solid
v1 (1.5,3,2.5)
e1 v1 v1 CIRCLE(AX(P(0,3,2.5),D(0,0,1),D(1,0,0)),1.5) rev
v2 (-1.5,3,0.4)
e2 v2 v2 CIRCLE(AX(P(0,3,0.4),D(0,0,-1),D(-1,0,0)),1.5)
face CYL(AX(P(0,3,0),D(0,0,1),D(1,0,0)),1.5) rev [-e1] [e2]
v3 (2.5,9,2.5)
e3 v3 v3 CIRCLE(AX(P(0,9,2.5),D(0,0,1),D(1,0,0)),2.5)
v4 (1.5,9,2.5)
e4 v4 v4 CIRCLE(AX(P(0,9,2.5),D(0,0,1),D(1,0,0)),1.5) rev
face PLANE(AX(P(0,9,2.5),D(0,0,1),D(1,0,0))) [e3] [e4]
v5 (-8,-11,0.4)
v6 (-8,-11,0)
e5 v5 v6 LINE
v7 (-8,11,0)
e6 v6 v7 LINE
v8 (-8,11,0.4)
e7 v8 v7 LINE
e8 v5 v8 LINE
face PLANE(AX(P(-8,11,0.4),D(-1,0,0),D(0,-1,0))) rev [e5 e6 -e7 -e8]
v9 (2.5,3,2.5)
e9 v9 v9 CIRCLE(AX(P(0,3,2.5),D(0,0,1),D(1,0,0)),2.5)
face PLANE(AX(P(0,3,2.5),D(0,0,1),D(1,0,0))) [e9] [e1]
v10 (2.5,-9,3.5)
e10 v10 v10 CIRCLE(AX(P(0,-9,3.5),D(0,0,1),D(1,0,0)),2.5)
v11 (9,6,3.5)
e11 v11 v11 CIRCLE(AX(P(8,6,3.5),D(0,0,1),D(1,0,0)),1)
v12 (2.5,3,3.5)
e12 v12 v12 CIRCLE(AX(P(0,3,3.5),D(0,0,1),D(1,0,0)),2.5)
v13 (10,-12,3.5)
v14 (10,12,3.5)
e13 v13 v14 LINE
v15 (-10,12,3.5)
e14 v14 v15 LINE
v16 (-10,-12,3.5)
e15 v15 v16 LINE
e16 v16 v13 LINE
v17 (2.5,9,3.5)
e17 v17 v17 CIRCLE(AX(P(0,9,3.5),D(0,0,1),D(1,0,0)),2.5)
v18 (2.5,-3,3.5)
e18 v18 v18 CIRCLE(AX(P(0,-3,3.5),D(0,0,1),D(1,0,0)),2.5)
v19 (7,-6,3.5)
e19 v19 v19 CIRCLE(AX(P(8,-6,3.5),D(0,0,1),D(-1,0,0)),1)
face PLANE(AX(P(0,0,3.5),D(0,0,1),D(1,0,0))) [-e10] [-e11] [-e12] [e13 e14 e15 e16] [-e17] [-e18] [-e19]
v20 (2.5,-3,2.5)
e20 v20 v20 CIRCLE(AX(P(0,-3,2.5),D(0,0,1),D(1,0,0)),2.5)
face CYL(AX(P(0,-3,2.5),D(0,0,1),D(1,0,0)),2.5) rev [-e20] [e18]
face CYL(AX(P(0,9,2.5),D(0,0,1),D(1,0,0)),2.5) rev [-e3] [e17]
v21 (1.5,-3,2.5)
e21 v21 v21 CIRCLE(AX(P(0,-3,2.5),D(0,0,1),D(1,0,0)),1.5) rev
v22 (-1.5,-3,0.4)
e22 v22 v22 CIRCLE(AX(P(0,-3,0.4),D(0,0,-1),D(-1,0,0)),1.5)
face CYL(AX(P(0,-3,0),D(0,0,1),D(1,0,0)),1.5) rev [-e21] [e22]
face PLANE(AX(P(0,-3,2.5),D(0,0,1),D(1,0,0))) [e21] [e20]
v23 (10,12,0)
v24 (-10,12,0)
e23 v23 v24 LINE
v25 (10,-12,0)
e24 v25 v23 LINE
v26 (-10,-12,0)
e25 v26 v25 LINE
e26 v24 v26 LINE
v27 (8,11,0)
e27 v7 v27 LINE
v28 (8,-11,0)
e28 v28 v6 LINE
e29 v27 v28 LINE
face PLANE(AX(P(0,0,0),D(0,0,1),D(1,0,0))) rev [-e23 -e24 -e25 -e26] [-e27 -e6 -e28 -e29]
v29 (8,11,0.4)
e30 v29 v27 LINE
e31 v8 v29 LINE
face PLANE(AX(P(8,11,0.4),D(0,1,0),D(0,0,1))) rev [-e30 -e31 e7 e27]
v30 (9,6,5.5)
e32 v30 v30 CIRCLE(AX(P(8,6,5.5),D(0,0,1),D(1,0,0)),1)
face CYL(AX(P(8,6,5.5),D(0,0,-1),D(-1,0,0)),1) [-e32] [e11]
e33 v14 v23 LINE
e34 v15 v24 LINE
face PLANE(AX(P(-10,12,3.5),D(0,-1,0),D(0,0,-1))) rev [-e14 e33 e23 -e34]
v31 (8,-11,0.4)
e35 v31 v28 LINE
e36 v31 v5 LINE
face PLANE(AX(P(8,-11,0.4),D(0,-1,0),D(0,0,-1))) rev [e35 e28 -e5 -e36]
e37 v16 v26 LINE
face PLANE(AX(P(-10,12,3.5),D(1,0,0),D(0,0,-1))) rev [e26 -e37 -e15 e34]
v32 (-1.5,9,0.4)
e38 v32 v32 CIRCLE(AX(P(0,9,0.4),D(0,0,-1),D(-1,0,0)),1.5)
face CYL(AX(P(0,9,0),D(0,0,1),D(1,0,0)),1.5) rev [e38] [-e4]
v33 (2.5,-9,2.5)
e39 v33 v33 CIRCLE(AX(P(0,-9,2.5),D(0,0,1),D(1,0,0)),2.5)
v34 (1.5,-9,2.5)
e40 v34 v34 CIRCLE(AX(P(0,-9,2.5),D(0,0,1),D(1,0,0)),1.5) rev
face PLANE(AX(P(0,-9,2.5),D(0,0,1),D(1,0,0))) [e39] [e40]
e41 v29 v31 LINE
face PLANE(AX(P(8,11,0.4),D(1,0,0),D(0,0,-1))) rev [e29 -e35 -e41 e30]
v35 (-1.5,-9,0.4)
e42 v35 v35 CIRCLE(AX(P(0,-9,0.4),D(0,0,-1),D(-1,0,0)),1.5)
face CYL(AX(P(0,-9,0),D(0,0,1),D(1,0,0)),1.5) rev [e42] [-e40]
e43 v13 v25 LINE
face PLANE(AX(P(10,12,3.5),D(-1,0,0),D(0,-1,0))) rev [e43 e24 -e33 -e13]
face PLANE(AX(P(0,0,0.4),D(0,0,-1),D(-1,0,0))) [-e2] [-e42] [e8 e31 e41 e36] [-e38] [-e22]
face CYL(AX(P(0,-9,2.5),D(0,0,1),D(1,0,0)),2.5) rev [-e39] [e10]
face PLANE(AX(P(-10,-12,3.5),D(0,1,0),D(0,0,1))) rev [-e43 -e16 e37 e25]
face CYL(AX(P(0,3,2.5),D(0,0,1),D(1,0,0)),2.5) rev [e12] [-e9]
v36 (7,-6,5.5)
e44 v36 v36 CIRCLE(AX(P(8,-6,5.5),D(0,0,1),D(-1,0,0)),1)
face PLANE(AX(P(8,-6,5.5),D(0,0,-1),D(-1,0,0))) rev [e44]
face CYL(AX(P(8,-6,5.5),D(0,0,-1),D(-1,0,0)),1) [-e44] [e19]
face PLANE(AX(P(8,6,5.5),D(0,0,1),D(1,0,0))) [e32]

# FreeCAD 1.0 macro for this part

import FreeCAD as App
import Part
import Sketcher


def add_polygon(sketch, points):
    """Adds a closed chain of lines whose ends are joined by coincident constraints."""
    first, n = sketch.GeometryCount, len(points)
    for a, b in zip(points, points[1:] + points[:1]):
        sketch.addGeometry(Part.LineSegment(App.Vector(*a, 0), App.Vector(*b, 0)), False)
    for i in range(n):
        sketch.addConstraint(Sketcher.Constraint("Coincident", first + i, 2, first + (i + 1) % n, 1))

doc = App.newDocument("Part")
body = doc.addObject("PartDesign::Body", "Body")

# Sketch on XY plane
sketch1 = doc.addObject("Sketcher::SketchObject", "Sketch")
body.addObject(sketch1)
sketch1.AttachmentSupport = (doc.XY_Plane, [""])
sketch1.MapMode = "FlatFace"
add_polygon(sketch1, [(-10, 12), (-10, -12), (10, -12), (10, 12)])  # lines 0-3
sketch1.addConstraint([
    Sketcher.Constraint("Vertical", 0),
    Sketcher.Constraint("Horizontal", 1),
    Sketcher.Constraint("Vertical", 2),
    Sketcher.Constraint("Horizontal", 3),
    Sketcher.Constraint("Symmetric", 0, 2, 2, 2, -1, 1),
    Sketcher.Constraint("DistanceX", 1, 1, 1, 2, 20.0),
    Sketcher.Constraint("DistanceY", 0, 2, 0, 1, 24.0),
])
pad1 = doc.addObject("PartDesign::Pad", "Pad")
body.addObject(pad1)
pad1.Profile = sketch1
pad1.Length = 3.5

# Sketch on XY plane
sketch2 = doc.addObject("Sketcher::SketchObject", "Sketch001")
body.addObject(sketch2)
sketch2.AttachmentSupport = (doc.XY_Plane, [""])
sketch2.MapMode = "FlatFace"
add_polygon(sketch2, [(8, 11), (8, -11), (-8, -11), (-8, 11)])  # lines 0-3
sketch2.addConstraint([
    Sketcher.Constraint("Vertical", 0),
    Sketcher.Constraint("Horizontal", 1),
    Sketcher.Constraint("Vertical", 2),
    Sketcher.Constraint("Horizontal", 3),
    Sketcher.Constraint("Symmetric", 0, 2, 2, 2, -1, 1),
    Sketcher.Constraint("DistanceX", 1, 2, 1, 1, 16.0),
    Sketcher.Constraint("DistanceY", 0, 2, 0, 1, 22.0),
])
pocket1 = doc.addObject("PartDesign::Pocket", "Pocket")
body.addObject(pocket1)
pocket1.Profile = sketch2
pocket1.Length = 0.4
pocket1.Reversed = True

# Sketch on XY plane
sketch3 = doc.addObject("Sketcher::SketchObject", "Sketch002")
body.addObject(sketch3)
sketch3.AttachmentSupport = (doc.XY_Plane, [""])
sketch3.MapMode = "FlatFace"
sketch3.AttachmentOffset = App.Placement(App.Vector(0, 0, 3.5), App.Rotation())
sketch3.addGeometry([
    Part.Circle(App.Vector(0, 3, 0), App.Vector(0, 0, 1), 1.5),
    Part.Circle(App.Vector(0, 9, 0), App.Vector(0, 0, 1), 1.5),
    Part.Circle(App.Vector(0, -9, 0), App.Vector(0, 0, 1), 1.5),
    Part.Circle(App.Vector(0, -3, 0), App.Vector(0, 0, 1), 1.5),
], False)
sketch3.addConstraint([
    Sketcher.Constraint("Equal", 0, 1),
    Sketcher.Constraint("Equal", 1, 2),
    Sketcher.Constraint("Equal", 2, 3),
    Sketcher.Constraint("Symmetric", 1, 3, 2, 3, -1, 1),
    Sketcher.Constraint("Symmetric", 0, 3, 3, 3, -1, 1),
    Sketcher.Constraint("PointOnObject", 0, 3, -2),
    Sketcher.Constraint("PointOnObject", 1, 3, -2),
    Sketcher.Constraint("Diameter", 0, 3.0),
    Sketcher.Constraint("DistanceY", -1, 1, 0, 3, 3.0),
    Sketcher.Constraint("DistanceY", -1, 1, 1, 3, 9.0),
])
pocket2 = doc.addObject("PartDesign::Pocket", "Pocket001")
body.addObject(pocket2)
pocket2.Profile = sketch3
pocket2.Type = "ThroughAll"

# Sketch on XY plane
sketch4 = doc.addObject("Sketcher::SketchObject", "Sketch003")
body.addObject(sketch4)
sketch4.AttachmentSupport = (doc.XY_Plane, [""])
sketch4.MapMode = "FlatFace"
sketch4.AttachmentOffset = App.Placement(App.Vector(0, 0, 3.5), App.Rotation())
sketch4.addGeometry(Part.Circle(App.Vector(0, 9, 0), App.Vector(0, 0, 1), 2.5), False)
sketch4.addConstraint([
    Sketcher.Constraint("PointOnObject", 0, 3, -2),
    Sketcher.Constraint("Diameter", 0, 5.0),
    Sketcher.Constraint("DistanceY", -1, 1, 0, 3, 9.0),
])
pocket3 = doc.addObject("PartDesign::Pocket", "Pocket002")
body.addObject(pocket3)
pocket3.Profile = sketch4
pocket3.Length = 1
doc.recompute()

linearpattern = doc.addObject("PartDesign::LinearPattern", "LinearPattern")
body.addObject(linearpattern)
linearpattern.Originals = [pocket3]
linearpattern.Direction = (doc.Y_Axis, [""])
linearpattern.Mode = "offset"
linearpattern.Offset = 6
linearpattern.Occurrences = 4
linearpattern.Reversed = True
body.Tip = linearpattern

# Sketch on XY plane
sketch5 = doc.addObject("Sketcher::SketchObject", "Sketch004")
body.addObject(sketch5)
sketch5.AttachmentSupport = (doc.XY_Plane, [""])
sketch5.MapMode = "FlatFace"
sketch5.AttachmentOffset = App.Placement(App.Vector(0, 0, 3.5), App.Rotation())
sketch5.addGeometry([
    Part.Circle(App.Vector(8, 6, 0), App.Vector(0, 0, 1), 1),
    Part.Circle(App.Vector(8, -6, 0), App.Vector(0, 0, 1), 1),
], False)
sketch5.addConstraint([
    Sketcher.Constraint("Equal", 0, 1),
    Sketcher.Constraint("Symmetric", 0, 3, 1, 3, -1),
    Sketcher.Constraint("Diameter", 0, 2.0),
    Sketcher.Constraint("DistanceX", -1, 1, 0, 3, 8.0),
    Sketcher.Constraint("DistanceY", -1, 1, 0, 3, 6.0),
])
pad2 = doc.addObject("PartDesign::Pad", "Pad001")
body.addObject(pad2)
pad2.Profile = sketch5
pad2.Length = 2

doc.recompute()
